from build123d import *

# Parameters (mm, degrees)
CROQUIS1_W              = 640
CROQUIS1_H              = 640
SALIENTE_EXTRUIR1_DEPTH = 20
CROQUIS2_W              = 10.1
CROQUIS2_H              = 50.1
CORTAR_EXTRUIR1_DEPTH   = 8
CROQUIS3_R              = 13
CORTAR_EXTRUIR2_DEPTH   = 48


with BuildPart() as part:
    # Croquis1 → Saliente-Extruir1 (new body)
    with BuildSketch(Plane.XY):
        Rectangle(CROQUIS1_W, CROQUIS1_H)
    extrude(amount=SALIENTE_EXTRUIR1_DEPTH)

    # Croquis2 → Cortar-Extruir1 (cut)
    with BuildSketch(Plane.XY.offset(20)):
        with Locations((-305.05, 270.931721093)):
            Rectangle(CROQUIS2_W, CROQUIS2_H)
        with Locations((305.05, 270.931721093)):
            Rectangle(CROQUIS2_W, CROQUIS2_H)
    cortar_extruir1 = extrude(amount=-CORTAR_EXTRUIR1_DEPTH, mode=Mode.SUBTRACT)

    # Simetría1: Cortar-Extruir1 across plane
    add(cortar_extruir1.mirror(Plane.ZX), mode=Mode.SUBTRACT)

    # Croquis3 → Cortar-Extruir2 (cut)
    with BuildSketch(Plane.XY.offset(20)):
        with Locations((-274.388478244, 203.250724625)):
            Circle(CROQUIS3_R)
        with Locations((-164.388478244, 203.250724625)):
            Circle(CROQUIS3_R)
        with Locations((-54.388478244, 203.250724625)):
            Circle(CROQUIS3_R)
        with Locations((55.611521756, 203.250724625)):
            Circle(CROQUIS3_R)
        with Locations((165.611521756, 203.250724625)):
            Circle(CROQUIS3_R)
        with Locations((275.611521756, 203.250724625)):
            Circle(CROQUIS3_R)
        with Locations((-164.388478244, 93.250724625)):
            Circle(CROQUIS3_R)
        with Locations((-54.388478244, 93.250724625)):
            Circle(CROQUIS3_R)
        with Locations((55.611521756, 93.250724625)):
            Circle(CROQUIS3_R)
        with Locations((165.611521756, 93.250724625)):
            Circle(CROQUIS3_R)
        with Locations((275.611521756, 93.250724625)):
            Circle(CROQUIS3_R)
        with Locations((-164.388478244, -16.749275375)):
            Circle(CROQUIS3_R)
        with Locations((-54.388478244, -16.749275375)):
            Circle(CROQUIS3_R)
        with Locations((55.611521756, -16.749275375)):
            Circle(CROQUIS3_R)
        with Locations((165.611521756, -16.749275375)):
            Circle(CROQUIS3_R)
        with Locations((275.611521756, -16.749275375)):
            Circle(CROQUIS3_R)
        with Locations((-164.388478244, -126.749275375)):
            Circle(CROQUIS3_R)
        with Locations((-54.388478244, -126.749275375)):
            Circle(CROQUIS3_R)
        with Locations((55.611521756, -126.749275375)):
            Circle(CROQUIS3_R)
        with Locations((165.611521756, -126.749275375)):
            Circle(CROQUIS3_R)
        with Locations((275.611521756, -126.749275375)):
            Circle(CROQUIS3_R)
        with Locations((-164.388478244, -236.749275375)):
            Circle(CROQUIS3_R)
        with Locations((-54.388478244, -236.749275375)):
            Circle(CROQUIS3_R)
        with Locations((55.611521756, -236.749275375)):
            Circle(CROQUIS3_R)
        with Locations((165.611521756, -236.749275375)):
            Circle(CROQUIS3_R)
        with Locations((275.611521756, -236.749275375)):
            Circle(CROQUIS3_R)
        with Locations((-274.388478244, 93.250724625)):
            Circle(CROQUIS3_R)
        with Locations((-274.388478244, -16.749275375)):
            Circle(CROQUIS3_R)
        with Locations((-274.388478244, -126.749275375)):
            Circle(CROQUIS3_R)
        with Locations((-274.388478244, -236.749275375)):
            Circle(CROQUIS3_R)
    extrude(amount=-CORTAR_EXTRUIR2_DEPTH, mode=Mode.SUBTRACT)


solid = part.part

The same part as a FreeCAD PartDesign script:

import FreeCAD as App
import Part
import Sketcher
from FreeCAD import Vector

doc = App.newDocument("Part")
body = doc.addObject("PartDesign::Body", "Body")

# Sketch on XY plane
sketch1 = body.newObject("Sketcher::SketchObject", "Sketch")
sketch1.AttachmentSupport = (doc.getObject("XY_Plane"), [""])
sketch1.MapMode = "FlatFace"
sketch1.addGeometry(Part.LineSegment(Vector(-320, 320, 0), Vector(-320, -320, 0)), False)
sketch1.addGeometry(Part.LineSegment(Vector(-320, -320, 0), Vector(320, -320, 0)), False)
sketch1.addGeometry(Part.LineSegment(Vector(320, -320, 0), Vector(320, 320, 0)), False)
sketch1.addGeometry(Part.LineSegment(Vector(320, 320, 0), Vector(-320, 320, 0)), False)
sketch1.addConstraint(Sketcher.Constraint("Coincident", 0, 2, 1, 1))
sketch1.addConstraint(Sketcher.Constraint("Coincident", 1, 2, 2, 1))
sketch1.addConstraint(Sketcher.Constraint("Coincident", 2, 2, 3, 1))
sketch1.addConstraint(Sketcher.Constraint("Coincident", 3, 2, 0, 1))
sketch1.addConstraint(Sketcher.Constraint("Vertical", 0))
sketch1.addConstraint(Sketcher.Constraint("Horizontal", 1))
sketch1.addConstraint(Sketcher.Constraint("Vertical", 2))
sketch1.addConstraint(Sketcher.Constraint("Horizontal", 3))
sketch1.addConstraint(Sketcher.Constraint("Symmetric", 0, 2, 2, 2, -1, 1))
sketch1.addConstraint(Sketcher.Constraint("Equal", 3, 0))
sketch1.addConstraint(Sketcher.Constraint("DistanceX", 1, 1, 1, 2, 640.0))
pad1 = body.newObject("PartDesign::Pad", "Pad")
pad1.Profile = sketch1
pad1.Length = 20

# Sketch on XY plane
sketch2 = body.newObject("Sketcher::SketchObject", "Sketch001")
sketch2.AttachmentSupport = (doc.getObject("XY_Plane"), [""])
sketch2.MapMode = "FlatFace"
sketch2.AttachmentOffset = App.Placement(Vector(0, 0, 20), App.Rotation())
sketch2.addGeometry(Part.LineSegment(Vector(-310.1, 295.981721, 0), Vector(-310.1, 245.881721, 0)), False)
sketch2.addGeometry(Part.LineSegment(Vector(-310.1, 245.881721, 0), Vector(-300, 245.881721, 0)), False)
sketch2.addGeometry(Part.LineSegment(Vector(-300, 245.881721, 0), Vector(-300, 295.981721, 0)), False)
sketch2.addGeometry(Part.LineSegment(Vector(-300, 295.981721, 0), Vector(-310.1, 295.981721, 0)), False)
sketch2.addGeometry(Part.LineSegment(Vector(300, 295.981721, 0), Vector(300, 245.881721, 0)), False)
sketch2.addGeometry(Part.LineSegment(Vector(300, 245.881721, 0), Vector(310.1, 245.881721, 0)), False)
sketch2.addGeometry(Part.LineSegment(Vector(310.1, 245.881721, 0), Vector(310.1, 295.981721, 0)), False)
sketch2.addGeometry(Part.LineSegment(Vector(310.1, 295.981721, 0), Vector(300, 295.981721, 0)), False)
sketch2.addConstraint(Sketcher.Constraint("Coincident", 0, 2, 1, 1))
sketch2.addConstraint(Sketcher.Constraint("Coincident", 1, 2, 2, 1))
sketch2.addConstraint(Sketcher.Constraint("Coincident", 2, 2, 3, 1))
sketch2.addConstraint(Sketcher.Constraint("Coincident", 3, 2, 0, 1))
sketch2.addConstraint(Sketcher.Constraint("Coincident", 4, 2, 5, 1))
sketch2.addConstraint(Sketcher.Constraint("Coincident", 5, 2, 6, 1))
sketch2.addConstraint(Sketcher.Constraint("Coincident", 6, 2, 7, 1))
sketch2.addConstraint(Sketcher.Constraint("Coincident", 7, 2, 4, 1))
sketch2.addConstraint(Sketcher.Constraint("Vertical", 0))
sketch2.addConstraint(Sketcher.Constraint("Horizontal", 1))
sketch2.addConstraint(Sketcher.Constraint("Vertical", 2))
sketch2.addConstraint(Sketcher.Constraint("Horizontal", 3))
sketch2.addConstraint(Sketcher.Constraint("Vertical", 4))
sketch2.addConstraint(Sketcher.Constraint("Horizontal", 5))
sketch2.addConstraint(Sketcher.Constraint("Vertical", 6))
sketch2.addConstraint(Sketcher.Constraint("Horizontal", 7))
sketch2.addConstraint(Sketcher.Constraint("Symmetric", 1, 2, 4, 2, -2))
sketch2.addConstraint(Sketcher.Constraint("Symmetric", 3, 2, 6, 2, -2))
sketch2.addConstraint(Sketcher.Constraint("DistanceX", 1, 1, 1, 2, 10.1))
sketch2.addConstraint(Sketcher.Constraint("DistanceY", 0, 2, 0, 1, 50.1))
sketch2.addConstraint(Sketcher.Constraint("DistanceX", 1, 2, -1, 1, 300.0))
sketch2.addConstraint(Sketcher.Constraint("DistanceY", -1, 1, 0, 2, 245.881721))
pocket1 = body.newObject("PartDesign::Pocket", "Pocket")
pocket1.Profile = sketch2
pocket1.Length = 8
doc.recompute()

mirrored = body.newObject("PartDesign::Mirrored", "Mirrored")
mirrored.Originals = [pocket1]
mirrored.MirrorPlane = (doc.getObject("XZ_Plane"), [""])
body.Tip = mirrored

# Sketch on XY plane
sketch3 = body.newObject("Sketcher::SketchObject", "Sketch002")
sketch3.AttachmentSupport = (doc.getObject("XY_Plane"), [""])
sketch3.MapMode = "FlatFace"
sketch3.AttachmentOffset = App.Placement(Vector(0, 0, 20), App.Rotation())
sketch3.addGeometry(Part.Circle(Vector(-274.388478, 203.250725, 0), Vector(0, 0, 1), 13), False)
sketch3.addGeometry(Part.Circle(Vector(-164.388478, 203.250725, 0), Vector(0, 0, 1), 13), False)
sketch3.addGeometry(Part.Circle(Vector(-54.388478, 203.250725, 0), Vector(0, 0, 1), 13), False)
sketch3.addGeometry(Part.Circle(Vector(55.611522, 203.250725, 0), Vector(0, 0, 1), 13), False)
sketch3.addGeometry(Part.Circle(Vector(165.611522, 203.250725, 0), Vector(0, 0, 1), 13), False)
sketch3.addGeometry(Part.Circle(Vector(275.611522, 203.250725, 0), Vector(0, 0, 1), 13), False)
sketch3.addGeometry(Part.Circle(Vector(-164.388478, 93.250725, 0), Vector(0, 0, 1), 13), False)
sketch3.addGeometry(Part.Circle(Vector(-54.388478, 93.250725, 0), Vector(0, 0, 1), 13), False)
sketch3.addGeometry(Part.Circle(Vector(55.611522, 93.250725, 0), Vector(0, 0, 1), 13), False)
sketch3.addGeometry(Part.Circle(Vector(165.611522, 93.250725, 0), Vector(0, 0, 1), 13), False)
sketch3.addGeometry(Part.Circle(Vector(275.611522, 93.250725, 0), Vector(0, 0, 1), 13), False)
sketch3.addGeometry(Part.Circle(Vector(-164.388478, -16.749275, 0), Vector(0, 0, 1), 13), False)
sketch3.addGeometry(Part.Circle(Vector(-54.388478, -16.749275, 0), Vector(0, 0, 1), 13), False)
sketch3.addGeometry(Part.Circle(Vector(55.611522, -16.749275, 0), Vector(0, 0, 1), 13), False)
sketch3.addGeometry(Part.Circle(Vector(165.611522, -16.749275, 0), Vector(0, 0, 1), 13), False)
sketch3.addGeometry(Part.Circle(Vector(275.611522, -16.749275, 0), Vector(0, 0, 1), 13), False)
sketch3.addGeometry(Part.Circle(Vector(-164.388478, -126.749275, 0), Vector(0, 0, 1), 13), False)
sketch3.addGeometry(Part.Circle(Vector(-54.388478, -126.749275, 0), Vector(0, 0, 1), 13), False)
sketch3.addGeometry(Part.Circle(Vector(55.611522, -126.749275, 0), Vector(0, 0, 1), 13), False)
sketch3.addGeometry(Part.Circle(Vector(165.611522, -126.749275, 0), Vector(0, 0, 1), 13), False)
sketch3.addGeometry(Part.Circle(Vector(275.611522, -126.749275, 0), Vector(0, 0, 1), 13), False)
sketch3.addGeometry(Part.Circle(Vector(-164.388478, -236.749275, 0), Vector(0, 0, 1), 13), False)
sketch3.addGeometry(Part.Circle(Vector(-54.388478, -236.749275, 0), Vector(0, 0, 1), 13), False)
sketch3.addGeometry(Part.Circle(Vector(55.611522, -236.749275, 0), Vector(0, 0, 1), 13), False)
sketch3.addGeometry(Part.Circle(Vector(165.611522, -236.749275, 0), Vector(0, 0, 1), 13), False)
sketch3.addGeometry(Part.Circle(Vector(275.611522, -236.749275, 0), Vector(0, 0, 1), 13), False)
sketch3.addGeometry(Part.Circle(Vector(-274.388478, 93.250725, 0), Vector(0, 0, 1), 13), False)
sketch3.addGeometry(Part.Circle(Vector(-274.388478, -16.749275, 0), Vector(0, 0, 1), 13), False)
sketch3.addGeometry(Part.Circle(Vector(-274.388478, -126.749275, 0), Vector(0, 0, 1), 13), False)
sketch3.addGeometry(Part.Circle(Vector(-274.388478, -236.749275, 0), Vector(0, 0, 1), 13), False)
sketch3.addConstraint(Sketcher.Constraint("Equal", 0, 1))
sketch3.addConstraint(Sketcher.Constraint("Equal", 1, 2))
sketch3.addConstraint(Sketcher.Constraint("Equal", 2, 3))
sketch3.addConstraint(Sketcher.Constraint("Equal", 3, 4))
sketch3.addConstraint(Sketcher.Constraint("Equal", 4, 5))
sketch3.addConstraint(Sketcher.Constraint("Equal", 5, 6))
sketch3.addConstraint(Sketcher.Constraint("Equal", 6, 7))
sketch3.addConstraint(Sketcher.Constraint("Equal", 7, 8))
sketch3.addConstraint(Sketcher.Constraint("Equal", 8, 9))
sketch3.addConstraint(Sketcher.Constraint("Equal", 9, 10))
sketch3.addConstraint(Sketcher.Constraint("Equal", 10, 11))
sketch3.addConstraint(Sketcher.Constraint("Equal", 11, 12))
sketch3.addConstraint(Sketcher.Constraint("Equal", 12, 13))
sketch3.addConstraint(Sketcher.Constraint("Equal", 13, 14))
sketch3.addConstraint(Sketcher.Constraint("Equal", 14, 15))
sketch3.addConstraint(Sketcher.Constraint("Equal", 15, 16))
sketch3.addConstraint(Sketcher.Constraint("Equal", 16, 17))
sketch3.addConstraint(Sketcher.Constraint("Equal", 17, 18))
sketch3.addConstraint(Sketcher.Constraint("Equal", 18, 19))
sketch3.addConstraint(Sketcher.Constraint("Equal", 19, 20))
sketch3.addConstraint(Sketcher.Constraint("Equal", 20, 21))
sketch3.addConstraint(Sketcher.Constraint("Equal", 21, 22))
sketch3.addConstraint(Sketcher.Constraint("Equal", 22, 23))
sketch3.addConstraint(Sketcher.Constraint("Equal", 23, 24))
sketch3.addConstraint(Sketcher.Constraint("Equal", 24, 25))
sketch3.addConstraint(Sketcher.Constraint("Equal", 25, 26))
sketch3.addConstraint(Sketcher.Constraint("Equal", 26, 27))
sketch3.addConstraint(Sketcher.Constraint("Equal", 27, 28))
sketch3.addConstraint(Sketcher.Constraint("Equal", 28, 29))
sketch3.addConstraint(Sketcher.Constraint("Horizontal", 0, 3, 1, 3))
sketch3.addConstraint(Sketcher.Constraint("Horizontal", 1, 3, 2, 3))
sketch3.addConstraint(Sketcher.Constraint("Horizontal", 2, 3, 3, 3))
sketch3.addConstraint(Sketcher.Constraint("Horizontal", 3, 3, 4, 3))
sketch3.addConstraint(Sketcher.Constraint("Horizontal", 4, 3, 5, 3))
sketch3.addConstraint(Sketcher.Constraint("Horizontal", 6, 3, 7, 3))
sketch3.addConstraint(Sketcher.Constraint("Horizontal", 7, 3, 8, 3))
sketch3.addConstraint(Sketcher.Constraint("Horizontal", 8, 3, 9, 3))
sketch3.addConstraint(Sketcher.Constraint("Horizontal", 9, 3, 10, 3))
sketch3.addConstraint(Sketcher.Constraint("Horizontal", 11, 3, 12, 3))
sketch3.addConstraint(Sketcher.Constraint("Horizontal", 12, 3, 13, 3))
sketch3.addConstraint(Sketcher.Constraint("Horizontal", 13, 3, 14, 3))
sketch3.addConstraint(Sketcher.Constraint("Horizontal", 14, 3, 15, 3))
sketch3.addConstraint(Sketcher.Constraint("Horizontal", 16, 3, 17, 3))
sketch3.addConstraint(Sketcher.Constraint("Horizontal", 17, 3, 18, 3))
sketch3.addConstraint(Sketcher.Constraint("Horizontal", 18, 3, 19, 3))
sketch3.addConstraint(Sketcher.Constraint("Horizontal", 19, 3, 20, 3))
sketch3.addConstraint(Sketcher.Constraint("Horizontal", 21, 3, 22, 3))
sketch3.addConstraint(Sketcher.Constraint("Horizontal", 22, 3, 23, 3))
sketch3.addConstraint(Sketcher.Constraint("Horizontal", 23, 3, 24, 3))
sketch3.addConstraint(Sketcher.Constraint("Horizontal", 24, 3, 25, 3))
sketch3.addConstraint(Sketcher.Constraint("Horizontal", 10, 3, 26, 3))
sketch3.addConstraint(Sketcher.Constraint("Horizontal", 15, 3, 27, 3))
sketch3.addConstraint(Sketcher.Constraint("Horizontal", 20, 3, 28, 3))
sketch3.addConstraint(Sketcher.Constraint("Horizontal", 25, 3, 29, 3))
sketch3.addConstraint(Sketcher.Constraint("Vertical", 1, 3, 6, 3))
sketch3.addConstraint(Sketcher.Constraint("Vertical", 2, 3, 7, 3))
sketch3.addConstraint(Sketcher.Constraint("Vertical", 3, 3, 8, 3))
sketch3.addConstraint(Sketcher.Constraint("Vertical", 4, 3, 9, 3))
sketch3.addConstraint(Sketcher.Constraint("Vertical", 5, 3, 10, 3))
sketch3.addConstraint(Sketcher.Constraint("Vertical", 6, 3, 11, 3))
sketch3.addConstraint(Sketcher.Constraint("Vertical", 7, 3, 12, 3))
sketch3.addConstraint(Sketcher.Constraint("Vertical", 8, 3, 13, 3))
sketch3.addConstraint(Sketcher.Constraint("Vertical", 9, 3, 14, 3))
sketch3.addConstraint(Sketcher.Constraint("Vertical", 10, 3, 15, 3))
sketch3.addConstraint(Sketcher.Constraint("Vertical", 11, 3, 16, 3))
sketch3.addConstraint(Sketcher.Constraint("Vertical", 12, 3, 17, 3))
sketch3.addConstraint(Sketcher.Constraint("Vertical", 13, 3, 18, 3))
sketch3.addConstraint(Sketcher.Constraint("Vertical", 14, 3, 19, 3))
sketch3.addConstraint(Sketcher.Constraint("Vertical", 15, 3, 20, 3))
sketch3.addConstraint(Sketcher.Constraint("Vertical", 16, 3, 21, 3))
sketch3.addConstraint(Sketcher.Constraint("Vertical", 17, 3, 22, 3))
sketch3.addConstraint(Sketcher.Constraint("Vertical", 18, 3, 23, 3))
sketch3.addConstraint(Sketcher.Constraint("Vertical", 19, 3, 24, 3))
sketch3.addConstraint(Sketcher.Constraint("Vertical", 20, 3, 25, 3))
sketch3.addConstraint(Sketcher.Constraint("Vertical", 0, 3, 26, 3))
sketch3.addConstraint(Sketcher.Constraint("Vertical", 26, 3, 27, 3))
sketch3.addConstraint(Sketcher.Constraint("Vertical", 27, 3, 28, 3))
sketch3.addConstraint(Sketcher.Constraint("Vertical", 28, 3, 29, 3))
sketch3.addConstraint(Sketcher.Constraint("Diameter", 0, 26.0))
sketch3.addConstraint(Sketcher.Constraint("DistanceX", 0, 3, 1, 3, 110.0))
sketch3.addConstraint(Sketcher.Constraint("DistanceX", 1, 3, 2, 3, 110.0))
sketch3.addConstraint(Sketcher.Constraint("DistanceX", 2, 3, 3, 3, 110.0))
sketch3.addConstraint(Sketcher.Constraint("DistanceX", 3, 3, 4, 3, 110.0))
sketch3.addConstraint(Sketcher.Constraint("DistanceX", 4, 3, 5, 3, 110.0))
sketch3.addConstraint(Sketcher.Constraint("DistanceY", 6, 3, 1, 3, 110.0))
sketch3.addConstraint(Sketcher.Constraint("DistanceY", 11, 3, 6, 3, 110.0))
sketch3.addConstraint(Sketcher.Constraint("DistanceY", 16, 3, 11, 3, 110.0))
sketch3.addConstraint(Sketcher.Constraint("DistanceY", 21, 3, 16, 3, 110.0))
sketch3.addConstraint(Sketcher.Constraint("DistanceX", 0, 3, -1, 1, 274.388478))
sketch3.addConstraint(Sketcher.Constraint("DistanceY", -1, 1, 0, 3, 203.250725))
pocket2 = body.newObject("PartDesign::Pocket", "Pocket001")
pocket2.Profile = sketch3
pocket2.Length = 48

doc.recompute()
